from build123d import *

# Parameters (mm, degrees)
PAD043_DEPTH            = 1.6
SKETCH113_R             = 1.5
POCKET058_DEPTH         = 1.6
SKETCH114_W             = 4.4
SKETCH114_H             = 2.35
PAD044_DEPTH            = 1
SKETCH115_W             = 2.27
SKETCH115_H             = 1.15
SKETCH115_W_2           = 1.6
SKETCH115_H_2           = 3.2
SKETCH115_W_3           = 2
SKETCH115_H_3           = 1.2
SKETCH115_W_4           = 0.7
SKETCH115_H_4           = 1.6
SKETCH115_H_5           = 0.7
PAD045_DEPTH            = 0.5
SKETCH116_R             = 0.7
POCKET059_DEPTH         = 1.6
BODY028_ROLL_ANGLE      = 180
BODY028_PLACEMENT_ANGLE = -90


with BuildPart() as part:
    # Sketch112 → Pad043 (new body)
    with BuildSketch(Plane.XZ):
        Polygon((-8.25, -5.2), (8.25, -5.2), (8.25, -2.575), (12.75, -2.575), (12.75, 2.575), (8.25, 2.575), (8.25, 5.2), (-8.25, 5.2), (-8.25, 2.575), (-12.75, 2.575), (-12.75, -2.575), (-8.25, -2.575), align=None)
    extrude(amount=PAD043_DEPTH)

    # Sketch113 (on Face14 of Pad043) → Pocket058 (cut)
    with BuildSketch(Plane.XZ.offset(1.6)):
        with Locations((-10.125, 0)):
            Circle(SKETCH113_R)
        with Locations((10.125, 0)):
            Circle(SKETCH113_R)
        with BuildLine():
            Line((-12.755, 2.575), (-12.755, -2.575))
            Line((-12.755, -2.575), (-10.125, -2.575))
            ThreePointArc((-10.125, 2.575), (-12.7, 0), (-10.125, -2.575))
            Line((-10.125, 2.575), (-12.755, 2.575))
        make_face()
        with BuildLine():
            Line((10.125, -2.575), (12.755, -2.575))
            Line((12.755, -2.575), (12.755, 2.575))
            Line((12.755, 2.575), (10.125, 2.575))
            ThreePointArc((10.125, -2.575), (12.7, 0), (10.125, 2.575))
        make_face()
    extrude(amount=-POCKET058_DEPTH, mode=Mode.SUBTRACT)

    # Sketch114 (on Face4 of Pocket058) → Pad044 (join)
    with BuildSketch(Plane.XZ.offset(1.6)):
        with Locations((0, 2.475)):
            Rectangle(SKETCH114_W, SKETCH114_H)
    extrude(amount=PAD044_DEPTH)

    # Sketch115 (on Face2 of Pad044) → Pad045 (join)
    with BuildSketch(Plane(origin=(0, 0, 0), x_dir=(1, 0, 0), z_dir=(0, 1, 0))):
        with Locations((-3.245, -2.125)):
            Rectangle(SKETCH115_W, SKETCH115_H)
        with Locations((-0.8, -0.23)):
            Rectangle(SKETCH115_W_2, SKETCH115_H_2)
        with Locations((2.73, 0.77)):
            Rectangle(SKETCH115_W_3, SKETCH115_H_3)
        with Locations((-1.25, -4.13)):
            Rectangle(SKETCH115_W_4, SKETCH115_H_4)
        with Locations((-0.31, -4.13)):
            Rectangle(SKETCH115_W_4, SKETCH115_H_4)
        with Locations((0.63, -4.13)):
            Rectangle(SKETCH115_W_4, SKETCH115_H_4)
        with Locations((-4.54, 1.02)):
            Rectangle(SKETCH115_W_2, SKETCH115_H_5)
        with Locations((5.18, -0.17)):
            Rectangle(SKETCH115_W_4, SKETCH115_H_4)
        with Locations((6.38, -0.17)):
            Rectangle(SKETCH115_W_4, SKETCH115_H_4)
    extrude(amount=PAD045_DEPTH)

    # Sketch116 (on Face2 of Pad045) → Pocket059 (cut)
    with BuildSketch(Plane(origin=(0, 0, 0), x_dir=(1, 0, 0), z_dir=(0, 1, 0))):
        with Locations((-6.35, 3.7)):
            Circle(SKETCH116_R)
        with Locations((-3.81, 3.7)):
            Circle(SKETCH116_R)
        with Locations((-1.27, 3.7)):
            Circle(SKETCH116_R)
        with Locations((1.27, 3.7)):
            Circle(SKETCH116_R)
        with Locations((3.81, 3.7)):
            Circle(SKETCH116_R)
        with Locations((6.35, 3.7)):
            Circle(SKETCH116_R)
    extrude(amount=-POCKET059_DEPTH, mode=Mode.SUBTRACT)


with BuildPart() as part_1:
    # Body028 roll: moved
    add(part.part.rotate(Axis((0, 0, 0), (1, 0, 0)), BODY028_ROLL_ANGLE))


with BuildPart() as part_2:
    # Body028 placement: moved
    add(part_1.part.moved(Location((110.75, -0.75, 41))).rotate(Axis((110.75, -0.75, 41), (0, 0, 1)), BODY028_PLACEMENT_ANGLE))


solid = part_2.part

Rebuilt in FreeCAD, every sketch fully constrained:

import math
import FreeCAD as App
import Part
import Sketcher
Q = App.Units.Quantity

doc = App.newDocument("Part")
body = doc.addObject("PartDesign::Body", "Body")

sketch1 = body.newObject("Sketcher::SketchObject", "Sketch")
sketch1.AttachmentSupport = (doc.getObject("XZ_Plane"), [""])
sketch1.MapMode = "FlatFace"
sketch1.addGeometry(Part.LineSegment(App.Vector(-8.2, -5.2, 0), App.Vector(8.2, -5.2, 0)), False)
sketch1.addGeometry(Part.LineSegment(App.Vector(8.2, -5.2, 0), App.Vector(8.2, -2.6, 0)), False)
sketch1.addGeometry(Part.LineSegment(App.Vector(8.2, -2.6, 0), App.Vector(12.8, -2.6, 0)), False)
sketch1.addGeometry(Part.LineSegment(App.Vector(12.8, -2.6, 0), App.Vector(12.8, 2.6, 0)), False)
sketch1.addGeometry(Part.LineSegment(App.Vector(12.8, 2.6, 0), App.Vector(8.2, 2.6, 0)), False)
sketch1.addGeometry(Part.LineSegment(App.Vector(8.2, 2.6, 0), App.Vector(8.2, 5.2, 0)), False)
sketch1.addGeometry(Part.LineSegment(App.Vector(8.2, 5.2, 0), App.Vector(-8.2, 5.2, 0)), False)
sketch1.addGeometry(Part.LineSegment(App.Vector(-8.2, 5.2, 0), App.Vector(-8.2, 2.6, 0)), False)
sketch1.addGeometry(Part.LineSegment(App.Vector(-8.2, 2.6, 0), App.Vector(-12.8, 2.6, 0)), False)
sketch1.addGeometry(Part.LineSegment(App.Vector(-12.8, 2.6, 0), App.Vector(-12.8, -2.6, 0)), False)
sketch1.addGeometry(Part.LineSegment(App.Vector(-12.8, -2.6, 0), App.Vector(-8.2, -2.6, 0)), False)
sketch1.addGeometry(Part.LineSegment(App.Vector(-8.2, -2.6, 0), App.Vector(-8.2, -5.2, 0)), False)
sketch1.addConstraint(Sketcher.Constraint("Coincident", 0, 2, 1, 1))
sketch1.addConstraint(Sketcher.Constraint("Coincident", 1, 2, 2, 1))
sketch1.addConstraint(Sketcher.Constraint("Coincident", 2, 2, 3, 1))
sketch1.addConstraint(Sketcher.Constraint("Coincident", 3, 2, 4, 1))
sketch1.addConstraint(Sketcher.Constraint("Coincident", 4, 2, 5, 1))
sketch1.addConstraint(Sketcher.Constraint("Coincident", 5, 2, 6, 1))
sketch1.addConstraint(Sketcher.Constraint("Coincident", 6, 2, 7, 1))
sketch1.addConstraint(Sketcher.Constraint("Coincident", 7, 2, 8, 1))
sketch1.addConstraint(Sketcher.Constraint("Coincident", 8, 2, 9, 1))
sketch1.addConstraint(Sketcher.Constraint("Coincident", 9, 2, 10, 1))
sketch1.addConstraint(Sketcher.Constraint("Coincident", 10, 2, 11, 1))
sketch1.addConstraint(Sketcher.Constraint("Coincident", 11, 2, 0, 1))
sketch1.addConstraint(Sketcher.Constraint("Horizontal", 0))
sketch1.addConstraint(Sketcher.Constraint("Vertical", 1))
sketch1.addConstraint(Sketcher.Constraint("Horizontal", 2))
sketch1.addConstraint(Sketcher.Constraint("Vertical", 3))
sketch1.addConstraint(Sketcher.Constraint("Horizontal", 4))
sketch1.addConstraint(Sketcher.Constraint("Vertical", 5))
sketch1.addConstraint(Sketcher.Constraint("Horizontal", 6))
sketch1.addConstraint(Sketcher.Constraint("Vertical", 7))
sketch1.addConstraint(Sketcher.Constraint("Horizontal", 8))
sketch1.addConstraint(Sketcher.Constraint("Vertical", 9))
sketch1.addConstraint(Sketcher.Constraint("Horizontal", 10))
sketch1.addConstraint(Sketcher.Constraint("Vertical", 11))
sketch1.addConstraint(Sketcher.Constraint("Symmetric", 0, 2, 6, 2, -1, 1))
sketch1.addConstraint(Sketcher.Constraint("Symmetric", 2, 2, 8, 2, -1, 1))
sketch1.addConstraint(Sketcher.Constraint("Symmetric", 4, 2, 10, 2, -1, 1))
sketch1.addConstraint(Sketcher.Constraint("Symmetric", 4, 2, 7, 2, -2))
sketch1.addConstraint(Sketcher.Constraint("DistanceX", 0, 1, 0, 2, Q("16.5 mm")))
sketch1.addConstraint(Sketcher.Constraint("DistanceX", 2, 1, 2, 2, Q("4.5 mm")))
sketch1.addConstraint(Sketcher.Constraint("DistanceY", 3, 1, 3, 2, Q("5.15 mm")))
sketch1.addConstraint(Sketcher.Constraint("DistanceY", 0, 2, -1, 1, Q("5.2 mm")))
pad1 = body.newObject("PartDesign::Pad", "Pad")
pad1.Profile = sketch1
pad1.Length = 1.6

sketch2 = body.newObject("Sketcher::SketchObject", "Sketch001")
sketch2.AttachmentSupport = (doc.getObject("XZ_Plane"), [""])
sketch2.MapMode = "FlatFace"
sketch2.AttachmentOffset = App.Placement(App.Vector(0, 0, 1.6), App.Rotation())
sketch2.addGeometry(Part.Circle(App.Vector(-10.1, 0, 0), App.Vector(0, 0, 1), 1.5), False)
sketch2.addGeometry(Part.Circle(App.Vector(10.1, 0, 0), App.Vector(0, 0, 1), 1.5), False)
sketch2.addGeometry(Part.LineSegment(App.Vector(-12.8, 2.6, 0), App.Vector(-12.8, -2.6, 0)), False)
sketch2.addGeometry(Part.LineSegment(App.Vector(-12.8, -2.6, 0), App.Vector(-10.1, -2.6, 0)), False)
sketch2.addGeometry(Part.ArcOfCircle(Part.Circle(App.Vector(-10.1, 0, 0), App.Vector(0, 0, 1), 2.6), math.radians(90), math.radians(270)), False)
sketch2.addGeometry(Part.LineSegment(App.Vector(-10.1, 2.6, 0), App.Vector(-12.8, 2.6, 0)), False)
sketch2.addGeometry(Part.LineSegment(App.Vector(10.1, -2.6, 0), App.Vector(12.8, -2.6, 0)), False)
sketch2.addGeometry(Part.LineSegment(App.Vector(12.8, -2.6, 0), App.Vector(12.8, 2.6, 0)), False)
sketch2.addGeometry(Part.LineSegment(App.Vector(12.8, 2.6, 0), App.Vector(10.1, 2.6, 0)), False)
sketch2.addGeometry(Part.ArcOfCircle(Part.Circle(App.Vector(10.1, 0, 0), App.Vector(0, 0, 1), 2.6), math.radians(-90), math.radians(90)), False)
sketch2.addConstraint(Sketcher.Constraint("Coincident", 2, 2, 3, 1))
sketch2.addConstraint(Sketcher.Constraint("Tangent", 3, 2, 4, 2))
sketch2.addConstraint(Sketcher.Constraint("Tangent", 4, 1, 5, 1))
sketch2.addConstraint(Sketcher.Constraint("Coincident", 5, 2, 2, 1))
sketch2.addConstraint(Sketcher.Constraint("Coincident", 6, 2, 7, 1))
sketch2.addConstraint(Sketcher.Constraint("Coincident", 7, 2, 8, 1))
sketch2.addConstraint(Sketcher.Constraint("Tangent", 8, 2, 9, 2))
sketch2.addConstraint(Sketcher.Constraint("Tangent", 9, 1, 6, 1))
sketch2.addConstraint(Sketcher.Constraint("Vertical", 2))
sketch2.addConstraint(Sketcher.Constraint("Horizontal", 3))
sketch2.addConstraint(Sketcher.Constraint("Horizontal", 5))
sketch2.addConstraint(Sketcher.Constraint("Horizontal", 6))
sketch2.addConstraint(Sketcher.Constraint("Vertical", 7))
sketch2.addConstraint(Sketcher.Constraint("Horizontal", 8))
sketch2.addConstraint(Sketcher.Constraint("Coincident", 4, 3, 0, 3))
sketch2.addConstraint(Sketcher.Constraint("Coincident", 9, 3, 1, 3))
sketch2.addConstraint(Sketcher.Constraint("Equal", 0, 1))
sketch2.addConstraint(Sketcher.Constraint("Equal", 4, 9))
sketch2.addConstraint(Sketcher.Constraint("Symmetric", 0, 3, 1, 3, -1, 1))
sketch2.addConstraint(Sketcher.Constraint("Symmetric", 2, 2, 6, 2, -2))
sketch2.addConstraint(Sketcher.Constraint("Diameter", 0, Q("3 mm")))
sketch2.addConstraint(Sketcher.Constraint("Radius", 4, Q("2.575 mm")))
sketch2.addConstraint(Sketcher.Constraint("DistanceX", 3, 1, 3, 2, Q("2.63 mm")))
sketch2.addConstraint(Sketcher.Constraint("DistanceX", 0, 3, 1, 3, Q("20.25 mm")))
pocket1 = body.newObject("PartDesign::Pocket", "Pocket")
pocket1.Profile = sketch2
pocket1.Length = 1.6

sketch3 = body.newObject("Sketcher::SketchObject", "Sketch002")
sketch3.AttachmentSupport = (doc.getObject("XZ_Plane"), [""])
sketch3.MapMode = "FlatFace"
sketch3.AttachmentOffset = App.Placement(App.Vector(0, 0, 1.6), App.Rotation())
sketch3.addGeometry(Part.LineSegment(App.Vector(-2.2, 3.6, 0), App.Vector(-2.2, 1.3, 0)), False)
sketch3.addGeometry(Part.LineSegment(App.Vector(-2.2, 1.3, 0), App.Vector(2.2, 1.3, 0)), False)
sketch3.addGeometry(Part.LineSegment(App.Vector(2.2, 1.3, 0), App.Vector(2.2, 3.6, 0)), False)
sketch3.addGeometry(Part.LineSegment(App.Vector(2.2, 3.6, 0), App.Vector(-2.2, 3.6, 0)), False)
sketch3.addConstraint(Sketcher.Constraint("Coincident", 0, 2, 1, 1))
sketch3.addConstraint(Sketcher.Constraint("Coincident", 1, 2, 2, 1))
sketch3.addConstraint(Sketcher.Constraint("Coincident", 2, 2, 3, 1))
sketch3.addConstraint(Sketcher.Constraint("Coincident", 3, 2, 0, 1))
sketch3.addConstraint(Sketcher.Constraint("Vertical", 0))
sketch3.addConstraint(Sketcher.Constraint("Horizontal", 1))
sketch3.addConstraint(Sketcher.Constraint("Vertical", 2))
sketch3.addConstraint(Sketcher.Constraint("Horizontal", 3))
sketch3.addConstraint(Sketcher.Constraint("DistanceX", 1, 1, 1, 2, Q("4.4 mm")))
sketch3.addConstraint(Sketcher.Constraint("DistanceY", 0, 2, 0, 1, Q("2.35 mm")))
sketch3.addConstraint(Sketcher.Constraint("DistanceX", 0, 2, -1, 1, Q("2.2 mm")))
sketch3.addConstraint(Sketcher.Constraint("DistanceY", -1, 1, 0, 2, Q("1.3 mm")))
pad2 = body.newObject("PartDesign::Pad", "Pad001")
pad2.Profile = sketch3
pad2.Length = 1

sketch4 = body.newObject("Sketcher::SketchObject", "Sketch003")
sketch4.AttachmentSupport = (doc.getObject("XZ_Plane"), [""])
sketch4.MapMode = "FlatFace"
sketch4.addGeometry(Part.LineSegment(App.Vector(-4.4, 1.6, 0), App.Vector(-4.4, 2.7, 0)), False)
sketch4.addGeometry(Part.LineSegment(App.Vector(-4.4, 2.7, 0), App.Vector(-2.1, 2.7, 0)), False)
sketch4.addGeometry(Part.LineSegment(App.Vector(-2.1, 2.7, 0), App.Vector(-2.1, 1.6, 0)), False)
sketch4.addGeometry(Part.LineSegment(App.Vector(-2.1, 1.6, 0), App.Vector(-4.4, 1.6, 0)), False)
sketch4.addGeometry(Part.LineSegment(App.Vector(-1.6, -1.4, 0), App.Vector(-1.6, 1.8, 0)), False)
sketch4.addGeometry(Part.LineSegment(App.Vector(-1.6, 1.8, 0), App.Vector(0, 1.8, 0)), False)
sketch4.addGeometry(Part.LineSegment(App.Vector(0, 1.8, 0), App.Vector(0, -1.4, 0)), False)
sketch4.addGeometry(Part.LineSegment(App.Vector(0, -1.4, 0), App.Vector(-1.6, -1.4, 0)), False)
sketch4.addGeometry(Part.LineSegment(App.Vector(1.7, -1.4, 0), App.Vector(1.7, -0.2, 0)), False)
sketch4.addGeometry(Part.LineSegment(App.Vector(1.7, -0.2, 0), App.Vector(3.7, -0.2, 0)), False)
sketch4.addGeometry(Part.LineSegment(App.Vector(3.7, -0.2, 0), App.Vector(3.7, -1.4, 0)), False)
sketch4.addGeometry(Part.LineSegment(App.Vector(3.7, -1.4, 0), App.Vector(1.7, -1.4, 0)), False)
sketch4.addGeometry(Part.LineSegment(App.Vector(-1.6, 3.3, 0), App.Vector(-1.6, 4.9, 0)), False)
sketch4.addGeometry(Part.LineSegment(App.Vector(-1.6, 4.9, 0), App.Vector(-0.9, 4.9, 0)), False)
sketch4.addGeometry(Part.LineSegment(App.Vector(-0.9, 4.9, 0), App.Vector(-0.9, 3.3, 0)), False)
sketch4.addGeometry(Part.LineSegment(App.Vector(-0.9, 3.3, 0), App.Vector(-1.6, 3.3, 0)), False)
sketch4.addGeometry(Part.LineSegment(App.Vector(-0.7, 3.3, 0), App.Vector(-0.7, 4.9, 0)), False)
sketch4.addGeometry(Part.LineSegment(App.Vector(-0.7, 4.9, 0), App.Vector(0, 4.9, 0)), False)
sketch4.addGeometry(Part.LineSegment(App.Vector(0, 4.9, 0), App.Vector(0, 3.3, 0)), False)
sketch4.addGeometry(Part.LineSegment(App.Vector(0, 3.3, 0), App.Vector(-0.7, 3.3, 0)), False)
sketch4.addGeometry(Part.LineSegment(App.Vector(0.3, 3.3, 0), App.Vector(0.3, 4.9, 0)), False)
sketch4.addGeometry(Part.LineSegment(App.Vector(0.3, 4.9, 0), App.Vector(1, 4.9, 0)), False)
sketch4.addGeometry(Part.LineSegment(App.Vector(1, 4.9, 0), App.Vector(1, 3.3, 0)), False)
sketch4.addGeometry(Part.LineSegment(App.Vector(1, 3.3, 0), App.Vector(0.3, 3.3, 0)), False)
sketch4.addGeometry(Part.LineSegment(App.Vector(-5.3, -1.4, 0), App.Vector(-5.3, -0.7, 0)), False)
sketch4.addGeometry(Part.LineSegment(App.Vector(-5.3, -0.7, 0), App.Vector(-3.7, -0.7, 0)), False)
sketch4.addGeometry(Part.LineSegment(App.Vector(-3.7, -0.7, 0), App.Vector(-3.7, -1.4, 0)), False)
sketch4.addGeometry(Part.LineSegment(App.Vector(-3.7, -1.4, 0), App.Vector(-5.3, -1.4, 0)), False)
sketch4.addGeometry(Part.LineSegment(App.Vector(4.8, -0.6, 0), App.Vector(4.8, 1, 0)), False)
sketch4.addGeometry(Part.LineSegment(App.Vector(4.8, 1, 0), App.Vector(5.5, 1, 0)), False)
sketch4.addGeometry(Part.LineSegment(App.Vector(5.5, 1, 0), App.Vector(5.5, -0.6, 0)), False)
sketch4.addGeometry(Part.LineSegment(App.Vector(5.5, -0.6, 0), App.Vector(4.8, -0.6, 0)), False)
sketch4.addGeometry(Part.LineSegment(App.Vector(6, -0.6, 0), App.Vector(6, 1, 0)), False)
sketch4.addGeometry(Part.LineSegment(App.Vector(6, 1, 0), App.Vector(6.7, 1, 0)), False)
sketch4.addGeometry(Part.LineSegment(App.Vector(6.7, 1, 0), App.Vector(6.7, -0.6, 0)), False)
sketch4.addGeometry(Part.LineSegment(App.Vector(6.7, -0.6, 0), App.Vector(6, -0.6, 0)), False)
sketch4.addConstraint(Sketcher.Constraint("Coincident", 0, 2, 1, 1))
sketch4.addConstraint(Sketcher.Constraint("Coincident", 1, 2, 2, 1))
sketch4.addConstraint(Sketcher.Constraint("Coincident", 2, 2, 3, 1))
sketch4.addConstraint(Sketcher.Constraint("Coincident", 3, 2, 0, 1))
sketch4.addConstraint(Sketcher.Constraint("Coincident", 4, 2, 5, 1))
sketch4.addConstraint(Sketcher.Constraint("Coincident", 5, 2, 6, 1))
sketch4.addConstraint(Sketcher.Constraint("Coincident", 6, 2, 7, 1))
sketch4.addConstraint(Sketcher.Constraint("Coincident", 7, 2, 4, 1))
sketch4.addConstraint(Sketcher.Constraint("Coincident", 8, 2, 9, 1))
sketch4.addConstraint(Sketcher.Constraint("Coincident", 9, 2, 10, 1))
sketch4.addConstraint(Sketcher.Constraint("Coincident", 10, 2, 11, 1))
sketch4.addConstraint(Sketcher.Constraint("Coincident", 11, 2, 8, 1))
sketch4.addConstraint(Sketcher.Constraint("Coincident", 12, 2, 13, 1))
sketch4.addConstraint(Sketcher.Constraint("Coincident", 13, 2, 14, 1))
sketch4.addConstraint(Sketcher.Constraint("Coincident", 14, 2, 15, 1))
sketch4.addConstraint(Sketcher.Constraint("Coincident", 15, 2, 12, 1))
sketch4.addConstraint(Sketcher.Constraint("Coincident", 16, 2, 17, 1))
sketch4.addConstraint(Sketcher.Constraint("Coincident", 17, 2, 18, 1))
sketch4.addConstraint(Sketcher.Constraint("Coincident", 18, 2, 19, 1))
sketch4.addConstraint(Sketcher.Constraint("Coincident", 19, 2, 16, 1))
sketch4.addConstraint(Sketcher.Constraint("Coincident", 20, 2, 21, 1))
sketch4.addConstraint(Sketcher.Constraint("Coincident", 21, 2, 22, 1))
sketch4.addConstraint(Sketcher.Constraint("Coincident", 22, 2, 23, 1))
sketch4.addConstraint(Sketcher.Constraint("Coincident", 23, 2, 20, 1))
sketch4.addConstraint(Sketcher.Constraint("Coincident", 24, 2, 25, 1))
sketch4.addConstraint(Sketcher.Constraint("Coincident", 25, 2, 26, 1))
sketch4.addConstraint(Sketcher.Constraint("Coincident", 26, 2, 27, 1))
sketch4.addConstraint(Sketcher.Constraint("Coincident", 27, 2, 24, 1))
sketch4.addConstraint(Sketcher.Constraint("Coincident", 28, 2, 29, 1))
sketch4.addConstraint(Sketcher.Constraint("Coincident", 29, 2, 30, 1))
sketch4.addConstraint(Sketcher.Constraint("Coincident", 30, 2, 31, 1))
sketch4.addConstraint(Sketcher.Constraint("Coincident", 31, 2, 28, 1))
sketch4.addConstraint(Sketcher.Constraint("Coincident", 32, 2, 33, 1))
sketch4.addConstraint(Sketcher.Constraint("Coincident", 33, 2, 34, 1))
sketch4.addConstraint(Sketcher.Constraint("Coincident", 34, 2, 35, 1))
sketch4.addConstraint(Sketcher.Constraint("Coincident", 35, 2, 32, 1))
sketch4.addConstraint(Sketcher.Constraint("Vertical", 0))
sketch4.addConstraint(Sketcher.Constraint("Horizontal", 1))
sketch4.addConstraint(Sketcher.Constraint("Vertical", 2))
sketch4.addConstraint(Sketcher.Constraint("Horizontal", 3))
sketch4.addConstraint(Sketcher.Constraint("Vertical", 4))
sketch4.addConstraint(Sketcher.Constraint("Horizontal", 5))
sketch4.addConstraint(Sketcher.Constraint("Vertical", 6))
sketch4.addConstraint(Sketcher.Constraint("Horizontal", 7))
sketch4.addConstraint(Sketcher.Constraint("Vertical", 8))
sketch4.addConstraint(Sketcher.Constraint("Horizontal", 9))
sketch4.addConstraint(Sketcher.Constraint("Vertical", 10))
sketch4.addConstraint(Sketcher.Constraint("Horizontal", 11))
sketch4.addConstraint(Sketcher.Constraint("Vertical", 12))
sketch4.addConstraint(Sketcher.Constraint("Horizontal", 13))
sketch4.addConstraint(Sketcher.Constraint("Vertical", 14))
sketch4.addConstraint(Sketcher.Constraint("Horizontal", 15))
sketch4.addConstraint(Sketcher.Constraint("Vertical", 16))
sketch4.addConstraint(Sketcher.Constraint("Horizontal", 17))
sketch4.addConstraint(Sketcher.Constraint("Vertical", 18))
sketch4.addConstraint(Sketcher.Constraint("Horizontal", 19))
sketch4.addConstraint(Sketcher.Constraint("Vertical", 20))
sketch4.addConstraint(Sketcher.Constraint("Horizontal", 21))
sketch4.addConstraint(Sketcher.Constraint("Vertical", 22))
sketch4.addConstraint(Sketcher.Constraint("Horizontal", 23))
sketch4.addConstraint(Sketcher.Constraint("Vertical", 24))
sketch4.addConstraint(Sketcher.Constraint("Horizontal", 25))
sketch4.addConstraint(Sketcher.Constraint("Vertical", 26))
sketch4.addConstraint(Sketcher.Constraint("Horizontal", 27))
sketch4.addConstraint(Sketcher.Constraint("Vertical", 28))
sketch4.addConstraint(Sketcher.Constraint("Horizontal", 29))
sketch4.addConstraint(Sketcher.Constraint("Vertical", 30))
sketch4.addConstraint(Sketcher.Constraint("Horizontal", 31))
sketch4.addConstraint(Sketcher.Constraint("Vertical", 32))
sketch4.addConstraint(Sketcher.Constraint("Horizontal", 33))
sketch4.addConstraint(Sketcher.Constraint("Vertical", 34))
sketch4.addConstraint(Sketcher.Constraint("Horizontal", 35))
sketch4.addConstraint(Sketcher.Constraint("PointOnObject", 5, 2, -2))
sketch4.addConstraint(Sketcher.Constraint("Horizontal", 7, 2, 10, 2))
sketch4.addConstraint(Sketcher.Constraint("Horizontal", 13, 2, 16, 2))
sketch4.addConstraint(Sketcher.Constraint("Horizontal", 15, 2, 18, 2))
sketch4.addConstraint(Sketcher.Constraint("Horizontal", 17, 2, 20, 2))
sketch4.addConstraint(Sketcher.Constraint("Horizontal", 19, 2, 22, 2))
sketch4.addConstraint(Sketcher.Constraint("Horizontal", 11, 2, 26, 2))
sketch4.addConstraint(Sketcher.Constraint("Horizontal", 29, 2, 32, 2))
sketch4.addConstraint(Sketcher.Constraint("Horizontal", 31, 2, 34, 2))
sketch4.addConstraint(Sketcher.Constraint("Vertical", 7, 2, 12, 2))
sketch4.addConstraint(Sketcher.Constraint("Equal", 15, 17))
sketch4.addConstraint(Sketcher.Constraint("Equal", 19, 21))
sketch4.addConstraint(Sketcher.Constraint("Equal", 7, 25))
sketch4.addConstraint(Sketcher.Constraint("Equal", 23, 29))
sketch4.addConstraint(Sketcher.Constraint("Equal", 31, 33))
sketch4.addConstraint(Sketcher.Constraint("Equal", 27, 12))
sketch4.addConstraint(Sketcher.Constraint("Equal", 35, 24))
sketch4.addConstraint(Sketcher.Constraint("Equal", 22, 28))
sketch4.addConstraint(Sketcher.Constraint("DistanceX", 9, 1, 9, 2, Q("2 mm")))
sketch4.addConstraint(Sketcher.Constraint("DistanceX", 5, 1, 5, 2, Q("1.6 mm")))
sketch4.addConstraint(Sketcher.Constraint("DistanceX", 13, 1, 13, 2, Q("0.7 mm")))
sketch4.addConstraint(Sketcher.Constraint("DistanceY", 4, 1, 4, 2, Q("3.2 mm")))
sketch4.addConstraint(Sketcher.Constraint("DistanceY", 8, 1, 8, 2, Q("1.2 mm")))
sketch4.addConstraint(Sketcher.Constraint("DistanceX", 1, 1, 1, 2, Q("2.27 mm")))
sketch4.addConstraint(Sketcher.Constraint("DistanceY", 0, 1, 0, 2, Q("1.15 mm")))
sketch4.addConstraint(Sketcher.Constraint("DistanceY", -1, 1, 0, 2, Q("2.7 mm")))
sketch4.addConstraint(Sketcher.Constraint("DistanceY", 4, 2, 12, 2, Q("3.1 mm")))
sketch4.addConstraint(Sketcher.Constraint("DistanceX", 9, 2, 28, 2, Q("1.1 mm")))
sketch4.addConstraint(Sketcher.Constraint("DistanceX", 29, 2, 32, 2, Q("0.5 mm")))
sketch4.addConstraint(Sketcher.Constraint("DistanceX", 0, 2, -1, 1, Q("4.38 mm")))
sketch4.addConstraint(Sketcher.Constraint("DistanceY", -1, 1, 4, 2, Q("1.83 mm")))
sketch4.addConstraint(Sketcher.Constraint("DistanceX", -1, 1, 8, 2, Q("1.73 mm")))
sketch4.addConstraint(Sketcher.Constraint("DistanceX", 16, 2, -1, 1, Q("0.66 mm")))
sketch4.addConstraint(Sketcher.Constraint("DistanceX", -1, 1, 20, 2, Q("0.28 mm")))
sketch4.addConstraint(Sketcher.Constraint("DistanceX", 24, 2, -1, 1, Q("5.34 mm")))
sketch4.addConstraint(Sketcher.Constraint("DistanceY", -1, 1, 28, 2, Q("0.97 mm")))
pad3 = body.newObject("PartDesign::Pad", "Pad002")
pad3.Profile = sketch4
pad3.Length = 0.5
pad3.Reversed = True

sketch5 = body.newObject("Sketcher::SketchObject", "Sketch004")
sketch5.AttachmentSupport = (doc.getObject("XZ_Plane"), [""])
sketch5.MapMode = "FlatFace"
sketch5.addGeometry(Part.Circle(App.Vector(-6.3, -3.7, 0), App.Vector(0, 0, 1), 0.7), False)
sketch5.addGeometry(Part.Circle(App.Vector(-3.8, -3.7, 0), App.Vector(0, 0, 1), 0.7), False)
sketch5.addGeometry(Part.Circle(App.Vector(-1.3, -3.7, 0), App.Vector(0, 0, 1), 0.7), False)
sketch5.addGeometry(Part.Circle(App.Vector(1.3, -3.7, 0), App.Vector(0, 0, 1), 0.7), False)
sketch5.addGeometry(Part.Circle(App.Vector(3.8, -3.7, 0), App.Vector(0, 0, 1), 0.7), False)
sketch5.addGeometry(Part.Circle(App.Vector(6.3, -3.7, 0), App.Vector(0, 0, 1), 0.7), False)
sketch5.addConstraint(Sketcher.Constraint("Equal", 0, 1))
sketch5.addConstraint(Sketcher.Constraint("Equal", 1, 2))
sketch5.addConstraint(Sketcher.Constraint("Equal", 2, 3))
sketch5.addConstraint(Sketcher.Constraint("Equal", 3, 4))
sketch5.addConstraint(Sketcher.Constraint("Equal", 4, 5))
sketch5.addConstraint(Sketcher.Constraint("Symmetric", 2, 3, 3, 3, -2))
sketch5.addConstraint(Sketcher.Constraint("Symmetric", 1, 3, 4, 3, -2))
sketch5.addConstraint(Sketcher.Constraint("Symmetric", 0, 3, 5, 3, -2))
sketch5.addConstraint(Sketcher.Constraint("Horizontal", 0, 3, 1, 3))
sketch5.addConstraint(Sketcher.Constraint("Horizontal", 1, 3, 2, 3))
sketch5.addConstraint(Sketcher.Constraint("Diameter", 0, Q("1.4 mm")))
sketch5.addConstraint(Sketcher.Constraint("DistanceY", 0, 3, -1, 1, Q("3.7 mm")))
sketch5.addConstraint(Sketcher.Constraint("DistanceX", 0, 3, 5, 3, Q("12.7 mm")))
sketch5.addConstraint(Sketcher.Constraint("DistanceX", 1, 3, -1, 1, Q("3.81 mm")))
sketch5.addConstraint(Sketcher.Constraint("DistanceX", 2, 3, -1, 1, Q("1.27 mm")))
pocket2 = body.newObject("PartDesign::Pocket", "Pocket001")
pocket2.Profile = sketch5
pocket2.Length = 1.6
pocket2.Reversed = True
body2 = doc.addObject("PartDesign::Body", "Body001")
doc.recompute()

body.Placement = App.Placement(App.Vector(0, 0, 0), App.Rotation(App.Vector(1, 0, 0), 180))
boolean = body2.newObject("PartDesign::Boolean", "Boolean")
boolean.Type = "Fuse"
boolean.addObjects([body])
body3 = doc.addObject("PartDesign::Body", "Body002")
doc.recompute()

body2.Placement = App.Placement(App.Vector(110.75, -0.75, 41), App.Rotation(App.Vector(0, 0, 1), 270))
boolean2 = body3.newObject("PartDesign::Boolean", "Boolean001")
boolean2.Type = "Fuse"
boolean2.addObjects([body2])

doc.recompute()
